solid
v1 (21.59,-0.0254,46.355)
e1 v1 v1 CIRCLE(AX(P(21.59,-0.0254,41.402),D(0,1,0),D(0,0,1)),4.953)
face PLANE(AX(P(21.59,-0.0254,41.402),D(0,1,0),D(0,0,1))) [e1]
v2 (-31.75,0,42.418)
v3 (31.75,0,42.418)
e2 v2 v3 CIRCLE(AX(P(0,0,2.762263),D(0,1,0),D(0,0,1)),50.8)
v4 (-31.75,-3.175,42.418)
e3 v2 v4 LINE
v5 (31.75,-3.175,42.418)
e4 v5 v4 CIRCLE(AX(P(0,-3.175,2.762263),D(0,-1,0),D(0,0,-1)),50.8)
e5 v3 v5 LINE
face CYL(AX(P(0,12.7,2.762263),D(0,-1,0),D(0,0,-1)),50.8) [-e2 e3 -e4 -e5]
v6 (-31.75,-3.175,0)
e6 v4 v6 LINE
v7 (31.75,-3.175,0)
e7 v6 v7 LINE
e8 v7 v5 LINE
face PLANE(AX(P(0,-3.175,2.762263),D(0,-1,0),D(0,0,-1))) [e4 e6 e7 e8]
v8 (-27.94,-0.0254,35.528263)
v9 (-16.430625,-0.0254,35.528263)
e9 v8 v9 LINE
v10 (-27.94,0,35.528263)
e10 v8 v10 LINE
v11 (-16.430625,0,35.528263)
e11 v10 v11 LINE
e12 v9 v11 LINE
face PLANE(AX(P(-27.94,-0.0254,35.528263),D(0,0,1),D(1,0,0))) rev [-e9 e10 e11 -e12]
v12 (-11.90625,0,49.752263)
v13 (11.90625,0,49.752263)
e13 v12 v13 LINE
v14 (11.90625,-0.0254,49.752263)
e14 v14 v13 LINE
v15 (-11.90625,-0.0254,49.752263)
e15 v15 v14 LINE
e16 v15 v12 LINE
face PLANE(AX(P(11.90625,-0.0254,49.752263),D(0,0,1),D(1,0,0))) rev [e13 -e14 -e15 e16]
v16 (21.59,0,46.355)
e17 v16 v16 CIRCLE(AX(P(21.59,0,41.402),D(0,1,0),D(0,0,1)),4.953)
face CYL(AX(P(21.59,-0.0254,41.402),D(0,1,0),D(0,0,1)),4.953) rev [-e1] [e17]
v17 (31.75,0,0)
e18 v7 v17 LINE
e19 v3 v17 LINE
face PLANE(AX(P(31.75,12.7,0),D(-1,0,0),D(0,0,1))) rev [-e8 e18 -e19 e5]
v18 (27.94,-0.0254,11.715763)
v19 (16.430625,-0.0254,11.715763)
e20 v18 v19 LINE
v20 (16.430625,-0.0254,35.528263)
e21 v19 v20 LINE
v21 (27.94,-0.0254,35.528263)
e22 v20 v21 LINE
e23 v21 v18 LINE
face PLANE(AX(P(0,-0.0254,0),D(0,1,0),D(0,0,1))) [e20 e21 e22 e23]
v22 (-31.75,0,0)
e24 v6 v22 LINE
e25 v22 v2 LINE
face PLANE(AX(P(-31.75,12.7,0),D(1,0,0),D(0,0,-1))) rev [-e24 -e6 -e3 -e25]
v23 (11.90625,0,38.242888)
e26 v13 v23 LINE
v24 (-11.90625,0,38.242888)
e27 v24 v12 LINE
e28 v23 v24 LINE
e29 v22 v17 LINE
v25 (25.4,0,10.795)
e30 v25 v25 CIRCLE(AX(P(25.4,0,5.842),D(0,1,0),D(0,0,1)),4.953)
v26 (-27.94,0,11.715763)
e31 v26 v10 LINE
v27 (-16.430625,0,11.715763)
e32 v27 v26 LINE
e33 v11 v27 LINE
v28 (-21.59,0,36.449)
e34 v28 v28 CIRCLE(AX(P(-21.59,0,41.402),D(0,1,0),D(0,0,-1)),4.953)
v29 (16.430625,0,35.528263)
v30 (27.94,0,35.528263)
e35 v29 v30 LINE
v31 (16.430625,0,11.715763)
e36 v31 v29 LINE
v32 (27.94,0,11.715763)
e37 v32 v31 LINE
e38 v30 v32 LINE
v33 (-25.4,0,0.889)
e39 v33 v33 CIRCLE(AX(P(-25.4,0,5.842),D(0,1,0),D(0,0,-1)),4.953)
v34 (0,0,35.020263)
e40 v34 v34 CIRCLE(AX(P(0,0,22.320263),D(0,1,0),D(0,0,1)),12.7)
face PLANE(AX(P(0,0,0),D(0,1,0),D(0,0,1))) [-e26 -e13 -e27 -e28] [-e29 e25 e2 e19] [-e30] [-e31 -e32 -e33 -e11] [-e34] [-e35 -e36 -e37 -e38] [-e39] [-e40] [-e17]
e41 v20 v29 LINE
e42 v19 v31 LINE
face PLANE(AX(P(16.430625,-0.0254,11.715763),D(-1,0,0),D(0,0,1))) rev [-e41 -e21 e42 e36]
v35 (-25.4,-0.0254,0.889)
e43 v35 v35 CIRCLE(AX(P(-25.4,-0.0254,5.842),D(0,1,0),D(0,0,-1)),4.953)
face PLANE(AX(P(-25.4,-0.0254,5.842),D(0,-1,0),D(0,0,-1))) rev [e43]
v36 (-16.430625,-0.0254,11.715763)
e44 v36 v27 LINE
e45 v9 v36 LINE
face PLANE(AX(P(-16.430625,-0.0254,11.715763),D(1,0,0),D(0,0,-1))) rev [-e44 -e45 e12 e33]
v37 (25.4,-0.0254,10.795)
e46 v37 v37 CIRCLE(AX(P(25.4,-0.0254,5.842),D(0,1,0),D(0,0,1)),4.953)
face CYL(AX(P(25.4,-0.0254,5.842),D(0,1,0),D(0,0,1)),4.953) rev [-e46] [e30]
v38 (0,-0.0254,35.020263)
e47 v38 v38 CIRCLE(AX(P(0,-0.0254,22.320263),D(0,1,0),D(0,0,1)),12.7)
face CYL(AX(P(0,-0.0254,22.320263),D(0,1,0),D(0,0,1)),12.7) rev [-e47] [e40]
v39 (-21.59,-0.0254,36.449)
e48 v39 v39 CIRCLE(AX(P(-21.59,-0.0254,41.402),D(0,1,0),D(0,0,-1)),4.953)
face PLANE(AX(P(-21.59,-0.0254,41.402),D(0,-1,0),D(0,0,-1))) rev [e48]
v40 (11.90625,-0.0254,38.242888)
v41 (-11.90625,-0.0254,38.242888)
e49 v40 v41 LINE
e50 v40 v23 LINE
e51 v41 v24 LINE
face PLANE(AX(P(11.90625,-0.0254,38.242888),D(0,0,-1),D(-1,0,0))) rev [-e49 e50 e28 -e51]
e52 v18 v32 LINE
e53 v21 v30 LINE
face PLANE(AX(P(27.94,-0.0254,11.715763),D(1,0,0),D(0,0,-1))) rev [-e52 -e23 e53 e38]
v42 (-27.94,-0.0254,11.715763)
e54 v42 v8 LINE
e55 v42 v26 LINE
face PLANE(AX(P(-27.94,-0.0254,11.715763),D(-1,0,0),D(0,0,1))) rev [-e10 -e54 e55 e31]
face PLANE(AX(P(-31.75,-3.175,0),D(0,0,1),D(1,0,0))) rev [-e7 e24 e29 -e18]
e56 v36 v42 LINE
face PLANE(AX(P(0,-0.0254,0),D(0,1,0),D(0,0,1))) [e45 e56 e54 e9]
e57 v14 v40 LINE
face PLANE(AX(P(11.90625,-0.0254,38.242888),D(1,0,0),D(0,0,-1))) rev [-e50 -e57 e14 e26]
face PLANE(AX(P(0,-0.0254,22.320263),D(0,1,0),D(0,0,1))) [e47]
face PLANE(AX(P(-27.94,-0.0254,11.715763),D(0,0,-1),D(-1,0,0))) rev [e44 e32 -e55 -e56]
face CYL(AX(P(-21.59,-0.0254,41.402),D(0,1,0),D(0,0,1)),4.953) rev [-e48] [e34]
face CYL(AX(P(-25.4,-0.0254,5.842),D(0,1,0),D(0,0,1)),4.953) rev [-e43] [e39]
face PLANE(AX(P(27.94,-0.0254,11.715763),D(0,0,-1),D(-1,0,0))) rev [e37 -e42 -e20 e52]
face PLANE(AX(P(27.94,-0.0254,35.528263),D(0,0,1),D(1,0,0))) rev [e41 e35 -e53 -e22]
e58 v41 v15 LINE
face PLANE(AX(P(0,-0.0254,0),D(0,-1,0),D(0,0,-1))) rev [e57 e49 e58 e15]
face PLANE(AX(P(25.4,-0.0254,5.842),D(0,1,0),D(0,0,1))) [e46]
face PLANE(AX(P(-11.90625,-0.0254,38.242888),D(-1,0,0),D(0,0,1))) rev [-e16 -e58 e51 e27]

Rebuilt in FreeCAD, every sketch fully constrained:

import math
import FreeCAD as App
import Part
import Sketcher
Q = App.Units.Quantity

doc = App.newDocument("Part")
body = doc.addObject("PartDesign::Body", "Body")

# Sketch on XZ plane
sketch1 = doc.addObject("Sketcher::SketchObject", "Sketch")
body.addObject(sketch1)
sketch1.AttachmentSupport = (doc.XZ_Plane, [""])
sketch1.MapMode = "FlatFace"
sketch1.addGeometry([
    Part.LineSegment(App.Vector(32, 0, 0), App.Vector(-32, 0, 0)),
    Part.LineSegment(App.Vector(-32, 0, 0), App.Vector(-32, 42, 0)),
    Part.ArcOfCircle(Part.Circle(App.Vector(0, 3, 0), App.Vector(0, 0, 1), 51), math.radians(51), math.radians(129)),
    Part.LineSegment(App.Vector(32, 42, 0), App.Vector(32, 0, 0)),
], False)
sketch1.addConstraint([
    Sketcher.Constraint("Coincident", 0, 2, 1, 1),
    Sketcher.Constraint("Coincident", 1, 2, 2, 2),
    Sketcher.Constraint("Coincident", 2, 1, 3, 1),
    Sketcher.Constraint("Coincident", 3, 2, 0, 1),
    Sketcher.Constraint("Horizontal", 0),
    Sketcher.Constraint("Vertical", 1),
    Sketcher.Constraint("Vertical", 3),
    Sketcher.Constraint("Symmetric", 0, 2, 3, 2, -1, 1),
    Sketcher.Constraint("PointOnObject", 2, 3, -2),
    Sketcher.Constraint("Radius", 2, Q("2 in")),
    Sketcher.Constraint("DistanceX", 0, 2, 0, 1, Q("2.5 in")),
    Sketcher.Constraint("DistanceY", 1, 1, 1, 2, Q("1.67 in")),
])
pad1 = doc.addObject("PartDesign::Pad", "Pad")
body.addObject(pad1)
pad1.Profile = sketch1
pad1.Length = Q("0.5 in")
pad1.Reversed = True

# Sketch on YZ plane
sketch2 = doc.addObject("Sketcher::SketchObject", "Sketch001")
body.addObject(sketch2)
sketch2.AttachmentSupport = (doc.YZ_Plane, [""])
sketch2.MapMode = "FlatFace"
sketch2.AttachmentOffset = App.Placement(App.Vector(0, 0, -0.77 * 25.4), App.Rotation())
sketch2.addGeometry([
    Part.LineSegment(App.Vector(0, -13, 0), App.Vector(0, 0, 0)),
    Part.LineSegment(App.Vector(0, 0, 0), App.Vector(13, 0, 0)),
    Part.ArcOfCircle(Part.Circle(App.Vector(13, -13, 0), App.Vector(0, 0, 1), 13), math.radians(180), math.radians(450)),
], False)
sketch2.addConstraint([
    Sketcher.Constraint("Coincident", 0, 2, 1, 1),
    Sketcher.Constraint("Tangent", 1, 2, 2, 2),
    Sketcher.Constraint("Tangent", 2, 1, 0, 1),
    Sketcher.Constraint("Vertical", 0),
    Sketcher.Constraint("Horizontal", 1),
    Sketcher.Constraint("Coincident", 0, 2, -1, 1),
    Sketcher.Constraint("Radius", 2, Q("0.5 in")),
])
pad2 = doc.addObject("PartDesign::Pad", "Pad001")
body.addObject(pad2)
pad2.Profile = sketch2
pad2.Length = Q("0.44 in")
doc.recompute()

mirrored = doc.addObject("PartDesign::Mirrored", "Mirrored")
body.addObject(mirrored)
mirrored.Originals = [pad2]
mirrored.MirrorPlane = (doc.YZ_Plane, [""])
body.Tip = mirrored

# Sketch on XZ plane
sketch3 = doc.addObject("Sketcher::SketchObject", "Sketch002")
body.addObject(sketch3)
sketch3.AttachmentSupport = (doc.XZ_Plane, [""])
sketch3.MapMode = "FlatFace"
sketch3.addGeometry([
    Part.LineSegment(App.Vector(-32, 42, 0), App.Vector(-32, 0, 0)),  # 0
    Part.LineSegment(App.Vector(-32, 0, 0), App.Vector(-20, 0, 0)),  # 1
    Part.LineSegment(App.Vector(-20, 0, 0), App.Vector(-20, -13, 0)),  # 2
    Part.LineSegment(App.Vector(-20, -13, 0), App.Vector(-8, -13, 0)),  # 3
    Part.LineSegment(App.Vector(-8, -13, 0), App.Vector(-8, 0, 0)),  # 4
    Part.LineSegment(App.Vector(-8, 0, 0), App.Vector(8, 0, 0)),  # 5
    Part.LineSegment(App.Vector(8, 0, 0), App.Vector(8, -13, 0)),  # 6
    Part.LineSegment(App.Vector(8, -13, 0), App.Vector(20, -13, 0)),  # 7
    Part.LineSegment(App.Vector(20, -13, 0), App.Vector(20, 0, 0)),  # 8
    Part.LineSegment(App.Vector(20, 0, 0), App.Vector(32, 0, 0)),  # 9
    Part.LineSegment(App.Vector(32, 0, 0), App.Vector(32, 42, 0)),  # 10
    Part.ArcOfCircle(Part.Circle(App.Vector(0, 3, 0), App.Vector(0, 0, 1), 51), math.radians(51), math.radians(129)),  # 11
], False)
sketch3.addConstraint([
    Sketcher.Constraint("Coincident", 0, 2, 1, 1),
    Sketcher.Constraint("Coincident", 1, 2, 2, 1),
    Sketcher.Constraint("Coincident", 2, 2, 3, 1),
    Sketcher.Constraint("Coincident", 3, 2, 4, 1),
    Sketcher.Constraint("Coincident", 4, 2, 5, 1),
    Sketcher.Constraint("Coincident", 5, 2, 6, 1),
    Sketcher.Constraint("Coincident", 6, 2, 7, 1),
    Sketcher.Constraint("Coincident", 7, 2, 8, 1),
    Sketcher.Constraint("Coincident", 8, 2, 9, 1),
    Sketcher.Constraint("Coincident", 9, 2, 10, 1),
    Sketcher.Constraint("Coincident", 10, 2, 11, 1),
    Sketcher.Constraint("Coincident", 11, 2, 0, 1),
    Sketcher.Constraint("Vertical", 0),
    Sketcher.Constraint("Horizontal", 1),
    Sketcher.Constraint("Vertical", 2),
    Sketcher.Constraint("Horizontal", 3),
    Sketcher.Constraint("Vertical", 4),
    Sketcher.Constraint("Horizontal", 5),
    Sketcher.Constraint("Vertical", 6),
    Sketcher.Constraint("Horizontal", 7),
    Sketcher.Constraint("Vertical", 8),
    Sketcher.Constraint("Horizontal", 9),
    Sketcher.Constraint("Vertical", 10),
    Sketcher.Constraint("Symmetric", 4, 2, 5, 2, -1, 1),
    Sketcher.Constraint("Symmetric", 1, 2, 8, 2, -1, 1),
    Sketcher.Constraint("Symmetric", 0, 2, 9, 2, -2),
    Sketcher.Constraint("PointOnObject", 11, 3, -2),
    Sketcher.Constraint("Horizontal", 3, 2, 6, 2),
    Sketcher.Constraint("Radius", 11, Q("2 in")),
    Sketcher.Constraint("DistanceY", 2, 2, 2, 1, Q("0.5 in")),
    Sketcher.Constraint("DistanceX", 1, 1, 1, 2, Q("0.48 in")),
    Sketcher.Constraint("DistanceX", 3, 1, 3, 2, Q("0.44 in")),
    Sketcher.Constraint("DistanceX", 5, 1, 5, 2, Q("0.66 in")),
    Sketcher.Constraint("DistanceY", 0, 2, 0, 1, Q("1.67 in")),
])
pad3 = doc.addObject("PartDesign::Pad", "Pad002")
body.addObject(pad3)
pad3.Profile = sketch3
pad3.Length = Q("0.125 in")

# Sketch on XZ plane
sketch4 = doc.addObject("Sketcher::SketchObject", "Sketch003")
body.addObject(sketch4)
sketch4.AttachmentSupport = (doc.XZ_Plane, [""])
sketch4.MapMode = "FlatFace"
sketch4.addGeometry([
    Part.LineSegment(App.Vector(48, -32, 0), App.Vector(48, 58, 0)),
    Part.LineSegment(App.Vector(48, 58, 0), App.Vector(-44, 58, 0)),
    Part.LineSegment(App.Vector(-44, 58, 0), App.Vector(-44, -32, 0)),
    Part.LineSegment(App.Vector(-44, -32, 0), App.Vector(48, -32, 0)),
], False)
sketch4.addConstraint([
    Sketcher.Constraint("Coincident", 0, 2, 1, 1),
    Sketcher.Constraint("Coincident", 1, 2, 2, 1),
    Sketcher.Constraint("Coincident", 2, 2, 3, 1),
    Sketcher.Constraint("Coincident", 3, 2, 0, 1),
    Sketcher.Constraint("Vertical", 0),
    Sketcher.Constraint("Horizontal", 1),
    Sketcher.Constraint("Vertical", 2),
    Sketcher.Constraint("Horizontal", 3),
    Sketcher.Constraint("DistanceX", 1, 2, 1, 1, Q("92.185701 mm")),
    Sketcher.Constraint("DistanceY", 0, 1, 0, 2, Q("89.424577 mm")),
    Sketcher.Constraint("DistanceY", 2, 2, -1, 1, Q("31.501141 mm")),
    Sketcher.Constraint("DistanceX", -1, 1, 0, 2, Q("48.228727 mm")),
])
pocket1 = doc.addObject("PartDesign::Pocket", "Pocket")
body.addObject(pocket1)
pocket1.Profile = sketch4
pocket1.Type = "ThroughAll"

# Sketch on XZ plane
sketch5 = doc.addObject("Sketcher::SketchObject", "Sketch004")
body.addObject(sketch5)
sketch5.AttachmentSupport = (doc.XZ_Plane, [""])
sketch5.MapMode = "FlatFace"
sketch5.addGeometry([
    Part.LineSegment(App.Vector(-32, -13, 0), App.Vector(-32, 0, 0)),
    Part.LineSegment(App.Vector(-32, 0, 0), App.Vector(32, 0, 0)),
    Part.LineSegment(App.Vector(32, 0, 0), App.Vector(32, -13, 0)),
    Part.LineSegment(App.Vector(32, -13, 0), App.Vector(-32, -13, 0)),
], False)
sketch5.addConstraint([
    Sketcher.Constraint("Coincident", 0, 2, 1, 1),
    Sketcher.Constraint("Coincident", 1, 2, 2, 1),
    Sketcher.Constraint("Coincident", 2, 2, 3, 1),
    Sketcher.Constraint("Coincident", 3, 2, 0, 1),
    Sketcher.Constraint("Vertical", 0),
    Sketcher.Constraint("Horizontal", 1),
    Sketcher.Constraint("Vertical", 2),
    Sketcher.Constraint("Horizontal", 3),
    Sketcher.Constraint("Symmetric", 0, 2, 1, 2, -1, 1),
    Sketcher.Constraint("DistanceX", 1, 1, 1, 2, Q("2.5 in")),
    Sketcher.Constraint("DistanceY", 0, 1, 0, 2, Q("0.5 in")),
])
pad4 = doc.addObject("PartDesign::Pad", "Pad003")
body.addObject(pad4)
pad4.Profile = sketch5
pad4.Length = Q("0.125 in")

# Sketch on XZ plane
sketch6 = doc.addObject("Sketcher::SketchObject", "Sketch005")
body.addObject(sketch6)
sketch6.AttachmentSupport = (doc.XZ_Plane, [""])
sketch6.MapMode = "FlatFace"
sketch6.addGeometry([
    Part.Circle(App.Vector(25.4, 5.8, 0), App.Vector(0, 0, 1), 5),  # 0
    Part.Circle(App.Vector(21.6, 41.4, 0), App.Vector(0, 0, 1), 5),  # 1
    Part.Circle(App.Vector(-25.4, 5.8, 0), App.Vector(0, 0, 1), 5),  # 2
    Part.Circle(App.Vector(-21.6, 41.4, 0), App.Vector(0, 0, 1), 5),  # 3
    Part.Circle(App.Vector(0, 22.3, 0), App.Vector(0, 0, 1), 12.7),  # 4
], False)
sketch6.addConstraint([
    Sketcher.Constraint("Equal", 0, 1),
    Sketcher.Constraint("Equal", 1, 2),
    Sketcher.Constraint("Equal", 2, 3),
    Sketcher.Constraint("Symmetric", 0, 3, 2, 3, -2),
    Sketcher.Constraint("Symmetric", 1, 3, 3, 3, -2),
    Sketcher.Constraint("PointOnObject", 4, 3, -2),
    Sketcher.Constraint("Diameter", 4, Q("1 in")),
    Sketcher.Constraint("Diameter", 0, Q("0.39 in")),
    Sketcher.Constraint("DistanceX", -1, 1, 0, 3, Q("1 in")),
    Sketcher.Constraint("DistanceY", 0, 3, 1, 3, Q("1.4 in")),
    Sketcher.Constraint("DistanceX", 3, 3, 1, 3, Q("1.7 in")),
    Sketcher.Constraint("DistanceY", -1, 1, 0, 3, Q("0.23 in")),
    Sketcher.Constraint("DistanceY", -1, 1, 4, 3, Q("22.320263 mm")),
])
pocket2 = doc.addObject("PartDesign::Pocket", "Pocket001")
body.addObject(pocket2)
pocket2.Profile = sketch6
pocket2.Length = Q("0.001 in")
pocket2.Reversed = True

# Sketch on XZ plane
sketch7 = doc.addObject("Sketcher::SketchObject", "Sketch006")
body.addObject(sketch7)
sketch7.AttachmentSupport = (doc.XZ_Plane, [""])
sketch7.MapMode = "FlatFace"
sketch7.addGeometry([
    Part.LineSegment(App.Vector(-28, 12, 0), App.Vector(-28, 36, 0)),  # 0
    Part.LineSegment(App.Vector(-28, 36, 0), App.Vector(-16, 36, 0)),  # 1
    Part.LineSegment(App.Vector(-16, 36, 0), App.Vector(-16, 12, 0)),  # 2
    Part.LineSegment(App.Vector(-16, 12, 0), App.Vector(-28, 12, 0)),  # 3
    Part.LineSegment(App.Vector(-12, 38, 0), App.Vector(-12, 50, 0)),  # 4
    Part.LineSegment(App.Vector(-12, 50, 0), App.Vector(12, 50, 0)),  # 5
    Part.LineSegment(App.Vector(12, 50, 0), App.Vector(12, 38, 0)),  # 6
    Part.LineSegment(App.Vector(12, 38, 0), App.Vector(-12, 38, 0)),  # 7
    Part.LineSegment(App.Vector(16, 12, 0), App.Vector(16, 36, 0)),  # 8
    Part.LineSegment(App.Vector(16, 36, 0), App.Vector(28, 36, 0)),  # 9
    Part.LineSegment(App.Vector(28, 36, 0), App.Vector(28, 12, 0)),  # 10
    Part.LineSegment(App.Vector(28, 12, 0), App.Vector(16, 12, 0)),  # 11
], False)
sketch7.addConstraint([
    Sketcher.Constraint("Coincident", 0, 2, 1, 1),
    Sketcher.Constraint("Coincident", 1, 2, 2, 1),
    Sketcher.Constraint("Coincident", 2, 2, 3, 1),
    Sketcher.Constraint("Coincident", 3, 2, 0, 1),
    Sketcher.Constraint("Coincident", 4, 2, 5, 1),
    Sketcher.Constraint("Coincident", 5, 2, 6, 1),
    Sketcher.Constraint("Coincident", 6, 2, 7, 1),
    Sketcher.Constraint("Coincident", 7, 2, 4, 1),
    Sketcher.Constraint("Coincident", 8, 2, 9, 1),
    Sketcher.Constraint("Coincident", 9, 2, 10, 1),
    Sketcher.Constraint("Coincident", 10, 2, 11, 1),
    Sketcher.Constraint("Coincident", 11, 2, 8, 1),
    Sketcher.Constraint("Vertical", 0),
    Sketcher.Constraint("Horizontal", 1),
    Sketcher.Constraint("Vertical", 2),
    Sketcher.Constraint("Horizontal", 3),
    Sketcher.Constraint("Vertical", 4),
    Sketcher.Constraint("Horizontal", 5),
    Sketcher.Constraint("Vertical", 6),
    Sketcher.Constraint("Horizontal", 7),
    Sketcher.Constraint("Vertical", 8),
    Sketcher.Constraint("Horizontal", 9),
    Sketcher.Constraint("Vertical", 10),
    Sketcher.Constraint("Horizontal", 11),
    Sketcher.Constraint("Symmetric", 1, 2, 8, 2, -2),
    Sketcher.Constraint("Symmetric", 3, 2, 10, 2, -2),
    Sketcher.Constraint("Equal", 7, 0),
    Sketcher.Constraint("Equal", 11, 4),
    Sketcher.Constraint("DistanceX", 0, 2, -1, 1, Q("1.1 in")),
    Sketcher.Constraint("DistanceX", 1, 1, 1, 2, Q("0.453125 in")),
    Sketcher.Constraint("DistanceX", 5, 1, 5, 2, Q("0.9375 in")),
    Sketcher.Constraint("DistanceY", 1, 2, 4, 2, Q("0.56 in")),
    Sketcher.Constraint("DistanceX", 4, 2, -1, 1, Q("0.46875 in")),
    Sketcher.Constraint("DistanceY", -1, 1, 0, 2, Q("35.528263 mm")),
])
pocket3 = doc.addObject("PartDesign::Pocket", "Pocket002")
body.addObject(pocket3)
pocket3.Profile = sketch7
pocket3.Length = Q("0.001 in")
pocket3.Reversed = True

# Sketch on XZ plane
sketch8 = doc.addObject("Sketcher::SketchObject", "Sketch007")
body.addObject(sketch8)
sketch8.AttachmentSupport = (doc.XZ_Plane, [""])
sketch8.MapMode = "FlatFace"
sketch8.addGeometry([
    Part.LineSegment(App.Vector(-32, -13, 0), App.Vector(-32, 0, 0)),
    Part.LineSegment(App.Vector(-32, 0, 0), App.Vector(32, 0, 0)),
    Part.LineSegment(App.Vector(32, 0, 0), App.Vector(32, -13, 0)),
    Part.LineSegment(App.Vector(32, -13, 0), App.Vector(-32, -13, 0)),
], False)
sketch8.addConstraint([
    Sketcher.Constraint("Coincident", 0, 2, 1, 1),
    Sketcher.Constraint("Coincident", 1, 2, 2, 1),
    Sketcher.Constraint("Coincident", 2, 2, 3, 1),
    Sketcher.Constraint("Coincident", 3, 2, 0, 1),
    Sketcher.Constraint("Vertical", 0),
    Sketcher.Constraint("Horizontal", 1),
    Sketcher.Constraint("Vertical", 2),
    Sketcher.Constraint("Horizontal", 3),
    Sketcher.Constraint("Symmetric", 0, 2, 1, 2, -1, 1),
    Sketcher.Constraint("DistanceX", 1, 1, 1, 2, Q("2.5 in")),
    Sketcher.Constraint("DistanceY", 0, 1, 0, 2, Q("0.5 in")),
])
pocket4 = doc.addObject("PartDesign::Pocket", "Pocket003")
body.addObject(pocket4)
pocket4.Profile = sketch8
pocket4.Type = "ThroughAll"
pocket4.Reversed = True

doc.recompute()
